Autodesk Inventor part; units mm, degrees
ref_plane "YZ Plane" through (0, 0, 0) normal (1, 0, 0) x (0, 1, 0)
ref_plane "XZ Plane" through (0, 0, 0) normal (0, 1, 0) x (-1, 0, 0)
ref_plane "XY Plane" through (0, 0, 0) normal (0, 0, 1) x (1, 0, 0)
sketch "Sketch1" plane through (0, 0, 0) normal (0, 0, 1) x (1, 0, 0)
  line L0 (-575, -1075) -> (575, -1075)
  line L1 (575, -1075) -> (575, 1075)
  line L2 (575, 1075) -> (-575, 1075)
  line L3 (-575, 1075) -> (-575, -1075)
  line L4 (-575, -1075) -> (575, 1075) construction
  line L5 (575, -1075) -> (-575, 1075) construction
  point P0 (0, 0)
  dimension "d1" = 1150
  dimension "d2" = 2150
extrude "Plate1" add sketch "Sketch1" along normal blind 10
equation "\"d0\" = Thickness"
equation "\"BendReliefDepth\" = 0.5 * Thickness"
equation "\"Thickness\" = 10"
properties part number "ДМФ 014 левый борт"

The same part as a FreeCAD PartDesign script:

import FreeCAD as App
import Part
import Sketcher
from FreeCAD import Vector
Q = App.Units.Quantity

doc = App.newDocument("Part")
body = doc.addObject("PartDesign::Body", "Body")

sketch1 = doc.addObject("Sketcher::SketchObject", "Sketch")
body.addObject(sketch1)
sketch1.AttachmentSupport = (doc.XY_Plane, [""])
sketch1.MapMode = "FlatFace"
sketch1.addGeometry([
    Part.LineSegment(Vector(-575, 1075, 0), Vector(-575, -1075, 0)),
    Part.LineSegment(Vector(-575, -1075, 0), Vector(575, -1075, 0)),
    Part.LineSegment(Vector(575, -1075, 0), Vector(575, 1075, 0)),
    Part.LineSegment(Vector(575, 1075, 0), Vector(-575, 1075, 0)),
], False)
sketch1.addConstraint([
    Sketcher.Constraint("Coincident", 0, 2, 1, 1),
    Sketcher.Constraint("Coincident", 1, 2, 2, 1),
    Sketcher.Constraint("Coincident", 2, 2, 3, 1),
    Sketcher.Constraint("Coincident", 3, 2, 0, 1),
    Sketcher.Constraint("Vertical", 0),
    Sketcher.Constraint("Horizontal", 1),
    Sketcher.Constraint("Vertical", 2),
    Sketcher.Constraint("Horizontal", 3),
    Sketcher.Constraint("Symmetric", 0, 2, 2, 2, -1, 1),
    Sketcher.Constraint("DistanceX", 1, 1, 1, 2, Q("1150 mm")),
    Sketcher.Constraint("DistanceY", 0, 2, 0, 1, Q("2150 mm")),
])
pad1 = doc.addObject("PartDesign::Pad", "Pad")
body.addObject(pad1)
pad1.Profile = sketch1
pad1.Length = 10

doc.recompute()
